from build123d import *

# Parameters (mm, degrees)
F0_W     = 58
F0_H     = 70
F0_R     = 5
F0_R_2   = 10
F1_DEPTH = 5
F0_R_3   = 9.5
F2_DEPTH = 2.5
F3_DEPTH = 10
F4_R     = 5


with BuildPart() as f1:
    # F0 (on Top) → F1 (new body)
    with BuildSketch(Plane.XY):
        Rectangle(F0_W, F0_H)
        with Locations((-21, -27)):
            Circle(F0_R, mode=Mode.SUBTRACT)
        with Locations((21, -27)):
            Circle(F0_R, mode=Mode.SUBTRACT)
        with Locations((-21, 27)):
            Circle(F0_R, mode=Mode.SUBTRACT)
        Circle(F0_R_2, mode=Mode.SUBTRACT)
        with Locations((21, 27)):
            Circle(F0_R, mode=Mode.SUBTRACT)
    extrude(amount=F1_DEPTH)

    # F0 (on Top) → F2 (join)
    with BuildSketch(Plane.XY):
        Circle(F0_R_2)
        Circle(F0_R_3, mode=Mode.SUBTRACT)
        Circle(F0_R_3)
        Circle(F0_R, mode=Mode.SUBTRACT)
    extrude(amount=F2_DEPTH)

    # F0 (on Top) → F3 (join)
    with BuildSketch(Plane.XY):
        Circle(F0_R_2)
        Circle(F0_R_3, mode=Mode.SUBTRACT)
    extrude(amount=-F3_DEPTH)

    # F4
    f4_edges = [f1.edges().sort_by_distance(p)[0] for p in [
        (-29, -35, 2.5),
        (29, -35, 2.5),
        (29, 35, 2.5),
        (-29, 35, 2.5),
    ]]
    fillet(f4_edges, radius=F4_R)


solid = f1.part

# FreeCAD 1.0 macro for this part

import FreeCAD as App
import Part
import Sketcher

V = App.Vector
Q = App.Units.Quantity


def edges_at(feature, points):
    """Names of the edges that pass closest to the given points."""
    edges = feature.Shape.Edges
    near = lambda p: min(range(len(edges)), key=lambda i: edges[i].distToShape(Part.Vertex(*p))[0])
    return sorted({f"Edge{near(p) + 1}" for p in points})


def add_polygon(sketch, points):
    """Adds a closed chain of lines whose ends are joined by coincident constraints."""
    first, n = sketch.GeometryCount, len(points)
    for a, b in zip(points, points[1:] + points[:1]):
        sketch.addGeometry(Part.LineSegment(App.Vector(*a, 0), App.Vector(*b, 0)), False)
    for i in range(n):
        sketch.addConstraint(Sketcher.Constraint("Coincident", first + i, 2, first + (i + 1) % n, 1))

doc = App.newDocument("Part")
body = doc.addObject("PartDesign::Body", "Body")

# Sketch on XY plane
sketch1 = body.newObject("Sketcher::SketchObject", "Sketch")
sketch1.AttachmentSupport = (doc.getObject("XY_Plane"), [""])
sketch1.MapMode = "FlatFace"
add_polygon(sketch1, [(-29, 35), (-29, -35), (29, -35), (29, 35)])  # lines 0-3
sketch1.addGeometry(Part.Circle(V(-21, -27, 0), V(0, 0, 1), 5), False)  # 4
sketch1.addGeometry(Part.Circle(V(21, -27, 0), V(0, 0, 1), 5), False)  # 5
sketch1.addGeometry(Part.Circle(V(-21, 27, 0), V(0, 0, 1), 5), False)  # 6
sketch1.addGeometry(Part.Circle(V(0, 0, 0), V(0, 0, 1), 10), False)  # 7
sketch1.addGeometry(Part.Circle(V(21, 27, 0), V(0, 0, 1), 5), False)  # 8
sketch1.addConstraint(Sketcher.Constraint("Vertical", 0))
sketch1.addConstraint(Sketcher.Constraint("Horizontal", 1))
sketch1.addConstraint(Sketcher.Constraint("Vertical", 2))
sketch1.addConstraint(Sketcher.Constraint("Horizontal", 3))
sketch1.addConstraint(Sketcher.Constraint("Coincident", 7, 3, -1, 1))
sketch1.addConstraint(Sketcher.Constraint("Equal", 4, 5))
sketch1.addConstraint(Sketcher.Constraint("Equal", 5, 6))
sketch1.addConstraint(Sketcher.Constraint("Equal", 6, 8))
sketch1.addConstraint(Sketcher.Constraint("Symmetric", 5, 3, 6, 3, -1, 1))
sketch1.addConstraint(Sketcher.Constraint("Symmetric", 4, 3, 8, 3, -1, 1))
sketch1.addConstraint(Sketcher.Constraint("Symmetric", 0, 2, 2, 2, -1, 1))
sketch1.addConstraint(Sketcher.Constraint("Symmetric", 4, 3, 5, 3, -2))
sketch1.addConstraint(Sketcher.Constraint("Diameter", 4, Q("10 mm")))
sketch1.addConstraint(Sketcher.Constraint("Diameter", 7, Q("20 mm")))
sketch1.addConstraint(Sketcher.Constraint("DistanceX", 1, 1, 1, 2, Q("58 mm")))
sketch1.addConstraint(Sketcher.Constraint("DistanceY", 0, 2, 0, 1, Q("70 mm")))
sketch1.addConstraint(Sketcher.Constraint("DistanceX", 4, 3, -1, 1, Q("21 mm")))
sketch1.addConstraint(Sketcher.Constraint("DistanceY", 4, 3, -1, 1, Q("27 mm")))
pad1 = body.newObject("PartDesign::Pad", "Pad")
pad1.Profile = sketch1
pad1.Length = 5

# Sketch on XY plane
sketch2 = body.newObject("Sketcher::SketchObject", "Sketch001")
sketch2.AttachmentSupport = (doc.getObject("XY_Plane"), [""])
sketch2.MapMode = "FlatFace"
sketch2.addGeometry(Part.Circle(V(0, 0, 0), V(0, 0, 1), 10), False)
sketch2.addGeometry(Part.Circle(V(0, 0, 0), V(0, 0, 1), 5), False)
sketch2.addConstraint(Sketcher.Constraint("Coincident", 0, 3, -1, 1))
sketch2.addConstraint(Sketcher.Constraint("Coincident", 1, 3, -1, 1))
sketch2.addConstraint(Sketcher.Constraint("Diameter", 0, Q("20 mm")))
sketch2.addConstraint(Sketcher.Constraint("Diameter", 1, Q("10 mm")))
pad2 = body.newObject("PartDesign::Pad", "Pad001")
pad2.Profile = sketch2
pad2.Length = 2.5

# Sketch on XY plane
sketch3 = body.newObject("Sketcher::SketchObject", "Sketch002")
sketch3.AttachmentSupport = (doc.getObject("XY_Plane"), [""])
sketch3.MapMode = "FlatFace"
sketch3.addGeometry(Part.Circle(V(0, 0, 0), V(0, 0, 1), 10), False)
sketch3.addGeometry(Part.Circle(V(0, 0, 0), V(0, 0, 1), 10), False)
sketch3.addConstraint(Sketcher.Constraint("Coincident", 0, 3, -1, 1))
sketch3.addConstraint(Sketcher.Constraint("Coincident", 1, 3, -1, 1))
sketch3.addConstraint(Sketcher.Constraint("Diameter", 0, Q("20 mm")))
sketch3.addConstraint(Sketcher.Constraint("Diameter", 1, Q("19 mm")))
pad3 = body.newObject("PartDesign::Pad", "Pad002")
pad3.Profile = sketch3
pad3.Length = 10
pad3.Reversed = True
doc.recompute()

fillet = body.newObject("PartDesign::Fillet", "Fillet")
fillet.Base = (pad3, edges_at(pad3, [
    (-29, -35, 2.5),
    (29, -35, 2.5),
    (29, 35, 2.5),
    (-29, 35, 2.5),
]))
fillet.Radius = 5

doc.recompute()
